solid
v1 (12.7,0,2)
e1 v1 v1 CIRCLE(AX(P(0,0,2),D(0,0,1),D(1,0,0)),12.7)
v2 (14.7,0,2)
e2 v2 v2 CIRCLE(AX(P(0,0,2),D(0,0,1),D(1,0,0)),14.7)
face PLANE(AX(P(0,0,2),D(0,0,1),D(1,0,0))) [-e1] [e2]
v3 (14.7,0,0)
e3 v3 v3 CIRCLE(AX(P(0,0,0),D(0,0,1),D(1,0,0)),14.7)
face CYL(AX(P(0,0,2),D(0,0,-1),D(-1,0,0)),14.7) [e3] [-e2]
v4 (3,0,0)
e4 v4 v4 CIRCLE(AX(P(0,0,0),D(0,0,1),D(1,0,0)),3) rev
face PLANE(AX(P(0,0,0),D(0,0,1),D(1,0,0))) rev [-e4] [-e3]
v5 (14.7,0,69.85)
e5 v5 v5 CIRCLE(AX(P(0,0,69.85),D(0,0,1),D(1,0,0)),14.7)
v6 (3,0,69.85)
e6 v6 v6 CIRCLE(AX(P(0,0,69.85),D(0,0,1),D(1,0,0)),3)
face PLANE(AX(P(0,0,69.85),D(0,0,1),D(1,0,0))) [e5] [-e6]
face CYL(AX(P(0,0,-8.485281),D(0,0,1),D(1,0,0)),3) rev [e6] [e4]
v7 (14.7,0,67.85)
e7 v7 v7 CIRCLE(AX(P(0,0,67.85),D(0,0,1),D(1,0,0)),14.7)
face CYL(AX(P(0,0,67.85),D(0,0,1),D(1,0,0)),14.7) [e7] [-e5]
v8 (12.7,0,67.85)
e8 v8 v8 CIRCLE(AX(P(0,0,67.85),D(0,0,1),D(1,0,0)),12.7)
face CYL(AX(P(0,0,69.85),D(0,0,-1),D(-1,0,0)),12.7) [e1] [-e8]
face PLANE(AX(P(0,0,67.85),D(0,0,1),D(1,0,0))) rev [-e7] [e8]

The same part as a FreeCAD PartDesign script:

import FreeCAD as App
import Part
import Sketcher
from FreeCAD import Vector

doc = App.newDocument("Part")
body = doc.addObject("PartDesign::Body", "Body")

# Sketch on XY plane
sketch1 = doc.addObject("Sketcher::SketchObject", "Sketch")
body.addObject(sketch1)
sketch1.AttachmentSupport = (doc.XY_Plane, [""])
sketch1.MapMode = "FlatFace"
sketch1.addGeometry(Part.Circle(Vector(0, 0, 0), Vector(0, 0, 1), 13), False)
sketch1.addConstraint([
    Sketcher.Constraint("Coincident", 0, 3, -1, 1),
    Sketcher.Constraint("Diameter", 0, 25.4),
])
pad1 = doc.addObject("PartDesign::Pad", "Pad")
body.addObject(pad1)
pad1.Profile = sketch1
pad1.Length = 69.85

# Sketch on XY plane
sketch2 = doc.addObject("Sketcher::SketchObject", "Sketch001")
body.addObject(sketch2)
sketch2.AttachmentSupport = (doc.XY_Plane, [""])
sketch2.MapMode = "FlatFace"
sketch2.AttachmentOffset = App.Placement(Vector(0, 0, 69.85), App.Rotation())
sketch2.addGeometry(Part.Circle(Vector(0, 0, 0), Vector(0, 0, 1), 3), False)
sketch2.addConstraint([
    Sketcher.Constraint("Coincident", 0, 3, -1, 1),
    Sketcher.Constraint("Diameter", 0, 6.0),
])
pocket1 = doc.addObject("PartDesign::Pocket", "Pocket")
body.addObject(pocket1)
pocket1.Profile = sketch2
pocket1.Length = 69.85

# Sketch on XY plane
sketch3 = doc.addObject("Sketcher::SketchObject", "Sketch002")
body.addObject(sketch3)
sketch3.AttachmentSupport = (doc.XY_Plane, [""])
sketch3.MapMode = "FlatFace"
sketch3.AttachmentOffset = App.Placement(Vector(0, 0, 2), App.Rotation())
sketch3.addGeometry([
    Part.Circle(Vector(0, 0, 0), Vector(0, 0, 1), 14.7),
    Part.Circle(Vector(0, 0, 0), Vector(0, 0, 1), 3),
], False)
sketch3.addConstraint([
    Sketcher.Constraint("Coincident", 0, 3, -1, 1),
    Sketcher.Constraint("Coincident", 1, 3, -1, 1),
    Sketcher.Constraint("Diameter", 1, 6.0),
    Sketcher.Constraint("Diameter", 0, 29.4),
])
pad2 = doc.addObject("PartDesign::Pad", "Pad001")
body.addObject(pad2)
pad2.Profile = sketch3
pad2.Length = 2
pad2.Reversed = True

# Sketch on XY plane
sketch4 = doc.addObject("Sketcher::SketchObject", "Sketch003")
body.addObject(sketch4)
sketch4.AttachmentSupport = (doc.XY_Plane, [""])
sketch4.MapMode = "FlatFace"
sketch4.AttachmentOffset = App.Placement(Vector(0, 0, 69.85), App.Rotation())
sketch4.addGeometry([
    Part.Circle(Vector(0, 0, 0), Vector(0, 0, 1), 14.7),
    Part.Circle(Vector(0, 0, 0), Vector(0, 0, 1), 3),
], False)
sketch4.addConstraint([
    Sketcher.Constraint("Coincident", 0, 3, -1, 1),
    Sketcher.Constraint("Coincident", 1, 3, -1, 1),
    Sketcher.Constraint("Diameter", 1, 6.0),
    Sketcher.Constraint("Diameter", 0, 29.4),
])
pad3 = doc.addObject("PartDesign::Pad", "Pad002")
body.addObject(pad3)
pad3.Profile = sketch4
pad3.Length = 2
pad3.Reversed = True

doc.recompute()
